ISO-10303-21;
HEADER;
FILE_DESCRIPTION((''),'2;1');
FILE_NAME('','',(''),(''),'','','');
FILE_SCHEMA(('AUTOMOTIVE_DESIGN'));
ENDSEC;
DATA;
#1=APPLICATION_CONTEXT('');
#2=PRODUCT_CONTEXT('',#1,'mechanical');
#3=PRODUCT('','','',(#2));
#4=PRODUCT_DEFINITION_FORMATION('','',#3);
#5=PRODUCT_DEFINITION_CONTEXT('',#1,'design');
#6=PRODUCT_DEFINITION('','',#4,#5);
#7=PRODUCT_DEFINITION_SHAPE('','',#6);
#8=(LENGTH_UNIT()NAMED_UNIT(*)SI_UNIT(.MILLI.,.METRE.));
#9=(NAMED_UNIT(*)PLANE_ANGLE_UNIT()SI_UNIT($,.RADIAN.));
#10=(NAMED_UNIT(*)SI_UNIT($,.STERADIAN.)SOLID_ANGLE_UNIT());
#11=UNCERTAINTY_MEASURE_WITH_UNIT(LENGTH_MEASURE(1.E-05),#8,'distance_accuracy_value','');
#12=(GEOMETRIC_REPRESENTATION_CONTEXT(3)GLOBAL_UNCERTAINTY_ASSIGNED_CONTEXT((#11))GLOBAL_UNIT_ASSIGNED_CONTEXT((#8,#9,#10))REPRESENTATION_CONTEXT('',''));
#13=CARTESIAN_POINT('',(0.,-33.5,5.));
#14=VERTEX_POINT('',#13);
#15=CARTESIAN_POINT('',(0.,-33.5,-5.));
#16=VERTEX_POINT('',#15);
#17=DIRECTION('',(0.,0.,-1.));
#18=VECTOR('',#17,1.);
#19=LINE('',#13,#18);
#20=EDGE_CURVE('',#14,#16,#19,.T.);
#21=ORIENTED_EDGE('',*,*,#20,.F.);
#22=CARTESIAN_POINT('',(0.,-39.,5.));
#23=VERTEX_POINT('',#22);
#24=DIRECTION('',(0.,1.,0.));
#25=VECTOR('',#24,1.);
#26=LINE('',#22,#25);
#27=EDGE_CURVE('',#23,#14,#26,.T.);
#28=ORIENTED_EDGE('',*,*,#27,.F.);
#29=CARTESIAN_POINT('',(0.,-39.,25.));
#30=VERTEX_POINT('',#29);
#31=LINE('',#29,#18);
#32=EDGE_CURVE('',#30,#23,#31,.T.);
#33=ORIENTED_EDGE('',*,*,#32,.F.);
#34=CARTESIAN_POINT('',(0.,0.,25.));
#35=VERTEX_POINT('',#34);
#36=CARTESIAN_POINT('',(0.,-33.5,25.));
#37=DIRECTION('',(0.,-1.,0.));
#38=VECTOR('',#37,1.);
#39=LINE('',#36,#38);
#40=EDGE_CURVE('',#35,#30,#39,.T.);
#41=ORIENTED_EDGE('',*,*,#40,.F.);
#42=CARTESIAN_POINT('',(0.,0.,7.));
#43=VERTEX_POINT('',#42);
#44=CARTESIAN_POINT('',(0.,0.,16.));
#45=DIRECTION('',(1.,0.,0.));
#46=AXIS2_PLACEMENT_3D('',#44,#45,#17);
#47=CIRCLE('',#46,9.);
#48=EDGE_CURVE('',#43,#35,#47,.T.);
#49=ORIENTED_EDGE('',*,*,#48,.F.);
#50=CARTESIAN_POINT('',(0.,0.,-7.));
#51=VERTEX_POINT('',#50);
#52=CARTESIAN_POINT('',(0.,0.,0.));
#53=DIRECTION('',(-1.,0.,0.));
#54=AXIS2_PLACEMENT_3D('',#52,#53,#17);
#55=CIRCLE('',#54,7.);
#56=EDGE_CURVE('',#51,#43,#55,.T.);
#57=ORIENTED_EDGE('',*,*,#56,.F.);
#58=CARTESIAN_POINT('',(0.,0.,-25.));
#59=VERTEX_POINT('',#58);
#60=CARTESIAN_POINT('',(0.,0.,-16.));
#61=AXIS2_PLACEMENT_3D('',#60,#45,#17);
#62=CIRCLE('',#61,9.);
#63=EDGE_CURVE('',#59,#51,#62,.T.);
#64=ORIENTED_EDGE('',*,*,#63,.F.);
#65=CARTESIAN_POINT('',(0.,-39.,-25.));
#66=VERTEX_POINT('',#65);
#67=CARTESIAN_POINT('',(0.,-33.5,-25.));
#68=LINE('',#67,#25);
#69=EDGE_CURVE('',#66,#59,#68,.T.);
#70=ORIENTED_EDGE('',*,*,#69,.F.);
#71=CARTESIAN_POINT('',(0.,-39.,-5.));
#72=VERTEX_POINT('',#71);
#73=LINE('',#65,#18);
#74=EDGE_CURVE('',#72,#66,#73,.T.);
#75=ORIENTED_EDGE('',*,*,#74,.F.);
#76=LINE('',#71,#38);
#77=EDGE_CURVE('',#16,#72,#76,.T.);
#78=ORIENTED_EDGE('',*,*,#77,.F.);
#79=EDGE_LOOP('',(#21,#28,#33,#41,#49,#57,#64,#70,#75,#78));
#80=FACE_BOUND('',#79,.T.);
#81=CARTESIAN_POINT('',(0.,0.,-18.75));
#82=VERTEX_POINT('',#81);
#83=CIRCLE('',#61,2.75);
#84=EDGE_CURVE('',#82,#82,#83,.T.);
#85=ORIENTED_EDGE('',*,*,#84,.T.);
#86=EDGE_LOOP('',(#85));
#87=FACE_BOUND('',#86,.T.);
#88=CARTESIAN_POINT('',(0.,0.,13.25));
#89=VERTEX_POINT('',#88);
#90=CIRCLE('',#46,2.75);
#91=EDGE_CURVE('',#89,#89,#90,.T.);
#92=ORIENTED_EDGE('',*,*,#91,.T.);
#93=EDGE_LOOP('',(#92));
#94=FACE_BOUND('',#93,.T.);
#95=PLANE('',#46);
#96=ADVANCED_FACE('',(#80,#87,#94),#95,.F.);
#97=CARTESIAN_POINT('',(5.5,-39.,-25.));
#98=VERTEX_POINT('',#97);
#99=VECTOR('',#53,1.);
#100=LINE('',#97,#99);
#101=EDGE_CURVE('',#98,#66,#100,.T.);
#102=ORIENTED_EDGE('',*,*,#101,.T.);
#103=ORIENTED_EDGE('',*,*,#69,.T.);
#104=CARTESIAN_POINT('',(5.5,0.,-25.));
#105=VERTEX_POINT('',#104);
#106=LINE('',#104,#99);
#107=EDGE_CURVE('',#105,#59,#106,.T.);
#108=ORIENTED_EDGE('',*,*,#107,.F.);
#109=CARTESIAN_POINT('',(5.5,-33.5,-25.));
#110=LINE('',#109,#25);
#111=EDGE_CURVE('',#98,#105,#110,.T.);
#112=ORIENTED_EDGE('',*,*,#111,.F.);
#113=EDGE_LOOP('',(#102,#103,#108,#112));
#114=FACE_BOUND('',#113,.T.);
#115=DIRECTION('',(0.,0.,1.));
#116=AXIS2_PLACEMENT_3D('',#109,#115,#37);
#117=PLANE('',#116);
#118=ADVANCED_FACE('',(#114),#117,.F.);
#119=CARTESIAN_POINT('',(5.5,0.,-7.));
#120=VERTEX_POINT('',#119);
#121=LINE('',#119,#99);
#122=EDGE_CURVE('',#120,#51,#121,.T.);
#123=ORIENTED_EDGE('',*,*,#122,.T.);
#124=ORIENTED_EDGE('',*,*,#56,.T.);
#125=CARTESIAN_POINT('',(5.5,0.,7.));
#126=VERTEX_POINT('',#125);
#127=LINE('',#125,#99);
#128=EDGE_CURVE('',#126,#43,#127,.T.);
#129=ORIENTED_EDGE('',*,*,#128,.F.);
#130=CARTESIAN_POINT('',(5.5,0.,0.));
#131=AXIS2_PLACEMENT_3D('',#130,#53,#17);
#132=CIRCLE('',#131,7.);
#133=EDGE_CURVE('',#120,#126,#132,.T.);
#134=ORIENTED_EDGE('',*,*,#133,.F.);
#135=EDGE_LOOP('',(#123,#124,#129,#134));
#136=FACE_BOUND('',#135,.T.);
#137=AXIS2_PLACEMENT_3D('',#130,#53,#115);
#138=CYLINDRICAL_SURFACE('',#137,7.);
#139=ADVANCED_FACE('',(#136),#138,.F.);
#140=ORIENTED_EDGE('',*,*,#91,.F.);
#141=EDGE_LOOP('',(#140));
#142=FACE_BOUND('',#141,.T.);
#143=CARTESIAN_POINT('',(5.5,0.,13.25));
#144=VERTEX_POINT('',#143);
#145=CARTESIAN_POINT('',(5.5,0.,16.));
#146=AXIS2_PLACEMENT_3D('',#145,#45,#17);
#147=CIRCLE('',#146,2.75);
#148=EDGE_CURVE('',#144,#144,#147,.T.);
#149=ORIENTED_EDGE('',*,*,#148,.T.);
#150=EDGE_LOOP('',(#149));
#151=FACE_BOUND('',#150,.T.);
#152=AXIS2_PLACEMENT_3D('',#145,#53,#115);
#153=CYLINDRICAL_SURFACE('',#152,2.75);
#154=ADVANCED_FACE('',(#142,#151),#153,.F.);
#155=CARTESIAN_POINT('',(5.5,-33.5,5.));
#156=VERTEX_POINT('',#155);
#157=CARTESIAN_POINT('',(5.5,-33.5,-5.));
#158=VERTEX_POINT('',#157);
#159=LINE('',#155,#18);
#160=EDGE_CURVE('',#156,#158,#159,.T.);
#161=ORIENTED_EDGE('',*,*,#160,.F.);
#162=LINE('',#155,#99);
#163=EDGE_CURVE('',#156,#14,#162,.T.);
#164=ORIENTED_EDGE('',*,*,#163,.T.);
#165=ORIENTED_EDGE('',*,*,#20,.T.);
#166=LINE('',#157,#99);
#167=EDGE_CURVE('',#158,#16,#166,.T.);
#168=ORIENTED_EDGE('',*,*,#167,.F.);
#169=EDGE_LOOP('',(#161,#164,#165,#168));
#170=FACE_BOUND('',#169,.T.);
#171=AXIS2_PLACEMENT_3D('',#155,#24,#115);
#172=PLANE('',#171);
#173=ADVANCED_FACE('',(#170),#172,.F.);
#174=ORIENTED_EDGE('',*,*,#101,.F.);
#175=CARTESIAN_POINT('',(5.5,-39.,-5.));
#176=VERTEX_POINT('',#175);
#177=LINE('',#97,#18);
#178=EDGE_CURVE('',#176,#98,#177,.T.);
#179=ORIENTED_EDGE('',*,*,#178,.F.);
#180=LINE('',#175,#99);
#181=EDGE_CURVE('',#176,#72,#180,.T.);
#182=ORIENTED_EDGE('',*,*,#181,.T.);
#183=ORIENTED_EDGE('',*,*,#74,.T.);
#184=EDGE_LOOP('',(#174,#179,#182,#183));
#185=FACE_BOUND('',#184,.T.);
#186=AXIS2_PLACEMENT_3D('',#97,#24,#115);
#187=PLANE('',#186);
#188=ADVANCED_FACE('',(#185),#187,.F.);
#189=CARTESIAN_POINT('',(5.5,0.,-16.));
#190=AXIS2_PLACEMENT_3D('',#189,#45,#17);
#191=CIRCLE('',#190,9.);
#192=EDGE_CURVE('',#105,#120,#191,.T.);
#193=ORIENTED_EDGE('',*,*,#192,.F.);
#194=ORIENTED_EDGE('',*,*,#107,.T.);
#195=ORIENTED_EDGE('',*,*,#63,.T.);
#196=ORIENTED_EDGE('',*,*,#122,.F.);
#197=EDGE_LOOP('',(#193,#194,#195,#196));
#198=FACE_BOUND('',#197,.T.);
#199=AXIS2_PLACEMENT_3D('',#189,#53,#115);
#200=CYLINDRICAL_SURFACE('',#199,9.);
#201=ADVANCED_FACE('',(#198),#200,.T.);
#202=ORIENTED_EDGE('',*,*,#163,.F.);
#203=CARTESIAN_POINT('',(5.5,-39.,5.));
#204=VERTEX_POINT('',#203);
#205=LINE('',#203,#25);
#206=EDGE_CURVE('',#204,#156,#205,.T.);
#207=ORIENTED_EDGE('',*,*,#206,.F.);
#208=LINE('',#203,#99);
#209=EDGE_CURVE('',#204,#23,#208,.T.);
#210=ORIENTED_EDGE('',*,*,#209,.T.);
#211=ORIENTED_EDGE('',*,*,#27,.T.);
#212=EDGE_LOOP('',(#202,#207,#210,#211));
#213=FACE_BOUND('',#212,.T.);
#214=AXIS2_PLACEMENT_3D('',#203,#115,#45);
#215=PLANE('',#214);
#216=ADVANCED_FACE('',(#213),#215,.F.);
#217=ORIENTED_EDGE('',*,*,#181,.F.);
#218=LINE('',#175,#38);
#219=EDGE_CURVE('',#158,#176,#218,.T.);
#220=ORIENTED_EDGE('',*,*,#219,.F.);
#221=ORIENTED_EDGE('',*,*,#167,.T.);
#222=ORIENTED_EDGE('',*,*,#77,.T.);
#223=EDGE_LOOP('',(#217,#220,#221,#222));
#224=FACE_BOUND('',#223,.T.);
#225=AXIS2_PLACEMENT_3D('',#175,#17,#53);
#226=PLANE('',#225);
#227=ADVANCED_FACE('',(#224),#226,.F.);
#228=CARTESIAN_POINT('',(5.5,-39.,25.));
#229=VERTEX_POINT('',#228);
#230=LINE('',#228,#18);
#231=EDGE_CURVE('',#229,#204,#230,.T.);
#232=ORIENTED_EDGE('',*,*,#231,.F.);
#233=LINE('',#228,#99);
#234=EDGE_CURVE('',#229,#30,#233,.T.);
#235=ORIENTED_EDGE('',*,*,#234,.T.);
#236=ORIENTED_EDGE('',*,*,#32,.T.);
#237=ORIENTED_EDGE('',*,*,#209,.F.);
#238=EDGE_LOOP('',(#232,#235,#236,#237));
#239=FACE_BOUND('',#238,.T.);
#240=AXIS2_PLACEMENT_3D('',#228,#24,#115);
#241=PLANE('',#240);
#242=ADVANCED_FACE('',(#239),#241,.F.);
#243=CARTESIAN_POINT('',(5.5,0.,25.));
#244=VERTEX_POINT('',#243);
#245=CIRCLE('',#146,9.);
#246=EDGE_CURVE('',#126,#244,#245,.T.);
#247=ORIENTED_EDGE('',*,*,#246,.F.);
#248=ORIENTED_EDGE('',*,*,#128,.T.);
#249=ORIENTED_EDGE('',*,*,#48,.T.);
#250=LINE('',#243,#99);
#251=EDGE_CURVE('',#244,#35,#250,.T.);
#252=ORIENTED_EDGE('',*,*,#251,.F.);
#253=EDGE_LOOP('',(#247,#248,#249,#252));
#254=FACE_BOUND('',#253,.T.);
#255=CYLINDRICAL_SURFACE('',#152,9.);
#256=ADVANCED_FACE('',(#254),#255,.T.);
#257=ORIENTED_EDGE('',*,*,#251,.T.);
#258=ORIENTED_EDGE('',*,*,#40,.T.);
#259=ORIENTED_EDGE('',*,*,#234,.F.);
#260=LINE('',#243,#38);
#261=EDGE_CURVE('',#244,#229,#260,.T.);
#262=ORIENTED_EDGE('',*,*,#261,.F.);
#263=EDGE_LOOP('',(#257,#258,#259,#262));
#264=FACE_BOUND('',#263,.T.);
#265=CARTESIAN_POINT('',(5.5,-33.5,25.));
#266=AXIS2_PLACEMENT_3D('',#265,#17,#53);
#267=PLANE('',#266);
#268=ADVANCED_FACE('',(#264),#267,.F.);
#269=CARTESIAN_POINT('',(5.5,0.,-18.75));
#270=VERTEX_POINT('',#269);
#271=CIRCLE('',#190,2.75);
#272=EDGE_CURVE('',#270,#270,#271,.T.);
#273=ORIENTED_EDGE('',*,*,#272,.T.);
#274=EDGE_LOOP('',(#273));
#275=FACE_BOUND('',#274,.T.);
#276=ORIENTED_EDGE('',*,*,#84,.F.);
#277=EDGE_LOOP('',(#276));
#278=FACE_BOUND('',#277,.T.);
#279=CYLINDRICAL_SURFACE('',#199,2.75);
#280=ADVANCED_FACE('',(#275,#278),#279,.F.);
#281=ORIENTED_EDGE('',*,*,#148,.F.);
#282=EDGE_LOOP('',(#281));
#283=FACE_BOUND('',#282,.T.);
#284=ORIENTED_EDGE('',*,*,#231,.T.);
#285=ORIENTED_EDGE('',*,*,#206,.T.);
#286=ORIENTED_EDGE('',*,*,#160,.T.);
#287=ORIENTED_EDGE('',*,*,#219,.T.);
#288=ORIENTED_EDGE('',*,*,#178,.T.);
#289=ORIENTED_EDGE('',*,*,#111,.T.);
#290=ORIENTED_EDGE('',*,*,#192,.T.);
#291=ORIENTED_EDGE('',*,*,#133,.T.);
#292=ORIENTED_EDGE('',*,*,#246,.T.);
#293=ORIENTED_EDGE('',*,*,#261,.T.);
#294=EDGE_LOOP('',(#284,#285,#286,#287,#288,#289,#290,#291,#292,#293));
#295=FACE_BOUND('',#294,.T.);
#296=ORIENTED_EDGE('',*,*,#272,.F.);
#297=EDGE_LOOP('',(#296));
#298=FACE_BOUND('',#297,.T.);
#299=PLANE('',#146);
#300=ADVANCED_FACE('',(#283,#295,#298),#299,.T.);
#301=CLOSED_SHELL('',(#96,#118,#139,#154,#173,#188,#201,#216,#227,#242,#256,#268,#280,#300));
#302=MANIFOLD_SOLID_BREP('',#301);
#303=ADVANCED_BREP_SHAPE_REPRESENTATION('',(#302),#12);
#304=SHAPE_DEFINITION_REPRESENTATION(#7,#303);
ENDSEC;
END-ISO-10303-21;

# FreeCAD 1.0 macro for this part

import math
import FreeCAD as App
import Part
import Sketcher

V = App.Vector

doc = App.newDocument("Part")
params = doc.addObject("Spreadsheet::Sheet", "Params")
for row, (alias, value) in enumerate([
    ("sketch1_radius", "9 mm"),
    ("sketch1_radius2", "7 mm"),
    ("sketch1_diameter", "5.5 mm"),
    ("sketch1_width", "39 mm"),
    ("sketch1_height", "20 mm"),
    ("pad1_length", "5.5 mm"),
], start=1):
    params.set(f"A{row}", alias)
    params.set(f"B{row}", "=" + value)
    params.setAlias(f"B{row}", alias)

body = doc.addObject("PartDesign::Body", "Body")

sketch1 = body.newObject("Sketcher::SketchObject", "Sketch")
sketch1.AttachmentSupport = (doc.getObject("YZ_Plane"), [""])
sketch1.MapMode = "FlatFace"
sketch1.addGeometry(Part.LineSegment(V(0, 25, 0), V(-39, 25, 0)), False)
sketch1.addGeometry(Part.LineSegment(V(-39, 25, 0), V(-39, 5, 0)), False)
sketch1.addGeometry(Part.LineSegment(V(-39, 5, 0), V(-33.5, 5, 0)), False)
sketch1.addGeometry(Part.LineSegment(V(-33.5, 5, 0), V(-33.5, -5, 0)), False)
sketch1.addGeometry(Part.LineSegment(V(-33.5, -5, 0), V(-39, -5, 0)), False)
sketch1.addGeometry(Part.LineSegment(V(-39, -5, 0), V(-39, -25, 0)), False)
sketch1.addGeometry(Part.LineSegment(V(-39, -25, 0), V(0, -25, 0)), False)
sketch1.addGeometry(Part.ArcOfCircle(Part.Circle(V(0, -16, 0), V(0, 0, 1), 9), math.radians(-90), math.radians(90)), False)
sketch1.addGeometry(Part.ArcOfCircle(Part.Circle(V(0, 0, 0), V(0, 0, 1), 7), math.radians(90), math.radians(270)), False)
sketch1.addGeometry(Part.ArcOfCircle(Part.Circle(V(0, 16, 0), V(0, 0, 1), 9), math.radians(-90), math.radians(90)), False)
sketch1.addGeometry(Part.Circle(V(0, 16, 0), V(0, 0, 1), 2.8), False)
sketch1.addGeometry(Part.Circle(V(0, -16, 0), V(0, 0, 1), 2.8), False)
sketch1.addConstraint(Sketcher.Constraint("Coincident", 0, 2, 1, 1))
sketch1.addConstraint(Sketcher.Constraint("Coincident", 1, 2, 2, 1))
sketch1.addConstraint(Sketcher.Constraint("Coincident", 2, 2, 3, 1))
sketch1.addConstraint(Sketcher.Constraint("Coincident", 3, 2, 4, 1))
sketch1.addConstraint(Sketcher.Constraint("Coincident", 4, 2, 5, 1))
sketch1.addConstraint(Sketcher.Constraint("Coincident", 5, 2, 6, 1))
sketch1.addConstraint(Sketcher.Constraint("Tangent", 6, 2, 7, 1))
sketch1.addConstraint(Sketcher.Constraint("Tangent", 7, 2, 8, 2))
sketch1.addConstraint(Sketcher.Constraint("Tangent", 8, 1, 9, 1))
sketch1.addConstraint(Sketcher.Constraint("Tangent", 9, 2, 0, 1))
sketch1.addConstraint(Sketcher.Constraint("Horizontal", 0))
sketch1.addConstraint(Sketcher.Constraint("Vertical", 1))
sketch1.addConstraint(Sketcher.Constraint("Horizontal", 2))
sketch1.addConstraint(Sketcher.Constraint("Vertical", 3))
sketch1.addConstraint(Sketcher.Constraint("Horizontal", 4))
sketch1.addConstraint(Sketcher.Constraint("Vertical", 5))
sketch1.addConstraint(Sketcher.Constraint("Horizontal", 6))
sketch1.addConstraint(Sketcher.Constraint("Coincident", 8, 3, -1, 1))
sketch1.addConstraint(Sketcher.Constraint("Coincident", 10, 3, 9, 3))
sketch1.addConstraint(Sketcher.Constraint("Coincident", 11, 3, 7, 3))
sketch1.addConstraint(Sketcher.Constraint("Equal", 7, 9))
sketch1.addConstraint(Sketcher.Constraint("Equal", 10, 11))
sketch1.addConstraint(Sketcher.Constraint("Symmetric", 1, 2, 4, 2, -1))
sketch1.addConstraint(Sketcher.Constraint("PointOnObject", 7, 3, -2))
sketch1.addConstraint(Sketcher.Constraint("PointOnObject", 9, 3, -2))
sketch1.addConstraint(Sketcher.Constraint("Radius", 7, 9.0))
sketch1.addConstraint(Sketcher.Constraint("Radius", 8, 7.0))
sketch1.addConstraint(Sketcher.Constraint("Diameter", 10, 5.5))
sketch1.addConstraint(Sketcher.Constraint("DistanceX", 0, 2, 0, 1, 39.0))
sketch1.addConstraint(Sketcher.Constraint("DistanceY", 1, 2, 1, 1, 20.0))
sketch1.addConstraint(Sketcher.Constraint("DistanceX", 2, 1, 2, 2, 5.5))
sketch1.setExpression("Constraints[25]", "Params.sketch1_radius")
sketch1.setExpression("Constraints[26]", "Params.sketch1_radius2")
sketch1.setExpression("Constraints[27]", "Params.sketch1_diameter")
sketch1.setExpression("Constraints[28]", "Params.sketch1_width")
sketch1.setExpression("Constraints[29]", "Params.sketch1_height")
pad1 = body.newObject("PartDesign::Pad", "Pad")
pad1.Profile = sketch1
pad1.setExpression("Length", "Params.pad1_length")

doc.recompute()
